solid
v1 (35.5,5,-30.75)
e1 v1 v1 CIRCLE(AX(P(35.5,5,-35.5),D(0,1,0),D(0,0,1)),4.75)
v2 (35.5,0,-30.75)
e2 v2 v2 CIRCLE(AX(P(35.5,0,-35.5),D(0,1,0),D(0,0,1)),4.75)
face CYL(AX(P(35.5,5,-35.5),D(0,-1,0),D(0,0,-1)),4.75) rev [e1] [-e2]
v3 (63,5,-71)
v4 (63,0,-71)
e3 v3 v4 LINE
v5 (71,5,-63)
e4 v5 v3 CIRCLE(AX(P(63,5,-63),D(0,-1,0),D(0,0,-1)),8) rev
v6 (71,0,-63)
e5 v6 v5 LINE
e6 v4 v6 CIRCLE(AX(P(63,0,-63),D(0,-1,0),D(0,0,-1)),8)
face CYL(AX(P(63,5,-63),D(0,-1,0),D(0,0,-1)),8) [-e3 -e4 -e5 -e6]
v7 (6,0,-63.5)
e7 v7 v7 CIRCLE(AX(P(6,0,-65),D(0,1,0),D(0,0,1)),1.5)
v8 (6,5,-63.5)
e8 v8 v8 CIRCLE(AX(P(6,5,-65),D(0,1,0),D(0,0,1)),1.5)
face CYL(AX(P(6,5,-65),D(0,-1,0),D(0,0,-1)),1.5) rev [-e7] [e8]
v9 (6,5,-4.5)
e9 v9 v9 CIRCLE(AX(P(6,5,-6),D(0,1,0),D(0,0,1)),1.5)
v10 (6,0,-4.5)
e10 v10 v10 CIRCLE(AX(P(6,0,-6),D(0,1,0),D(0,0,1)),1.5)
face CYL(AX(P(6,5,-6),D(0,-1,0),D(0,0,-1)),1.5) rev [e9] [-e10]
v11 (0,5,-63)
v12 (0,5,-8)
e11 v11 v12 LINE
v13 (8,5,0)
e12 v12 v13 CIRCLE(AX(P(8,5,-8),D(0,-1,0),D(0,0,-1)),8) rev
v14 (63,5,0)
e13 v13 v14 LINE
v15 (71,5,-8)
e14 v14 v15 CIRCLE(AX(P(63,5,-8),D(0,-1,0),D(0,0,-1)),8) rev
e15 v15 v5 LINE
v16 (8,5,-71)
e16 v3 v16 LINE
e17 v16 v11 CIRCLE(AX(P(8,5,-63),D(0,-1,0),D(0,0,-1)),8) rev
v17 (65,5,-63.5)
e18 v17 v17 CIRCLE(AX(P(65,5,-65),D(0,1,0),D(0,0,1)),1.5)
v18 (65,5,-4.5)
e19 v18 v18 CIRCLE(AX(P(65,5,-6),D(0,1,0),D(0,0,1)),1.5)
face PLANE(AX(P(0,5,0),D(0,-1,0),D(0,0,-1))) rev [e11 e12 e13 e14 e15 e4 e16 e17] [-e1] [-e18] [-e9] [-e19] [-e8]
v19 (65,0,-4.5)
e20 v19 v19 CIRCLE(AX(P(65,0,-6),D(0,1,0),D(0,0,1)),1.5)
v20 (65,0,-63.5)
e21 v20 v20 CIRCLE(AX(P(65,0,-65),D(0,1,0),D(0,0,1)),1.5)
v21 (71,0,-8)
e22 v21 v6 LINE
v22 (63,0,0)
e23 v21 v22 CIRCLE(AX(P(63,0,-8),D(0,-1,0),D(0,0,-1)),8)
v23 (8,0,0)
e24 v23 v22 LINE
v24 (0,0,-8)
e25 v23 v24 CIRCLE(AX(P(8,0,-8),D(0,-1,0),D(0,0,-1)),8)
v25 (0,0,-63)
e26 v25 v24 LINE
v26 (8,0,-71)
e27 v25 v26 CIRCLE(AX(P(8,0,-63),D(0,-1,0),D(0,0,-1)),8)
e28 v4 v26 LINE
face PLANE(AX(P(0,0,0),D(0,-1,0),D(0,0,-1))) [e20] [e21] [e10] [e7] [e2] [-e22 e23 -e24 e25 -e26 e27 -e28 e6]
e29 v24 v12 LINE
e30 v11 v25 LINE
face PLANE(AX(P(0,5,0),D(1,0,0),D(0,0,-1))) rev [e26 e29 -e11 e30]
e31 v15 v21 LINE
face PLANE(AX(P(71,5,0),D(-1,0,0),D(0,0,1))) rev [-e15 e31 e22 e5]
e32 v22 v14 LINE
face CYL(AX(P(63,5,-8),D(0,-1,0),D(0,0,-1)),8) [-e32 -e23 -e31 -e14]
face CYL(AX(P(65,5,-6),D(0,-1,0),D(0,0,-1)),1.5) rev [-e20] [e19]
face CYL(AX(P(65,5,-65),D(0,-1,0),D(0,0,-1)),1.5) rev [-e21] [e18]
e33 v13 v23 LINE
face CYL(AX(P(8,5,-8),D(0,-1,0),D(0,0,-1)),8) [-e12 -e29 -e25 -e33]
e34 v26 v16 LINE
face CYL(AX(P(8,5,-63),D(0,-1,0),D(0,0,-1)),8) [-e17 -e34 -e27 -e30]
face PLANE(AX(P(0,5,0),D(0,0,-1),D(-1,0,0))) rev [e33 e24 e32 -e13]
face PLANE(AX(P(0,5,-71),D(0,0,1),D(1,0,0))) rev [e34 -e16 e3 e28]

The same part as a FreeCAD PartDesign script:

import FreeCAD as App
import Part
import Sketcher

V = App.Vector


def edges_at(feature, points):
    """Names of the edges that pass closest to the given points."""
    edges = feature.Shape.Edges
    near = lambda p: min(range(len(edges)), key=lambda i: edges[i].distToShape(Part.Vertex(*p))[0])
    return sorted({f"Edge{near(p) + 1}" for p in points})


def add_polygon(sketch, points):
    """Adds a closed chain of lines whose ends are joined by coincident constraints."""
    first, n = sketch.GeometryCount, len(points)
    for a, b in zip(points, points[1:] + points[:1]):
        sketch.addGeometry(Part.LineSegment(App.Vector(*a, 0), App.Vector(*b, 0)), False)
    for i in range(n):
        sketch.addConstraint(Sketcher.Constraint("Coincident", first + i, 2, first + (i + 1) % n, 1))

doc = App.newDocument("Part")
body = doc.addObject("PartDesign::Body", "Body")

# Sketch on XZ plane
sketch1 = doc.addObject("Sketcher::SketchObject", "Sketch")
body.addObject(sketch1)
sketch1.AttachmentSupport = (doc.XZ_Plane, [""])
sketch1.MapMode = "FlatFace"
add_polygon(sketch1, [(0, -71), (0, 0), (71, 0), (71, -71)])  # lines 0-3
sketch1.addGeometry(Part.Circle(V(6, -6, 0), V(0, 0, 1), 1.5), False)  # 4
sketch1.addGeometry(Part.Circle(V(65, -6, 0), V(0, 0, 1), 1.5), False)  # 5
sketch1.addGeometry(Part.Circle(V(6, -65, 0), V(0, 0, 1), 1.5), False)  # 6
sketch1.addGeometry(Part.Circle(V(35.5, -35.5, 0), V(0, 0, 1), 4.8), False)  # 7
sketch1.addGeometry(Part.Circle(V(65, -65, 0), V(0, 0, 1), 1.5), False)  # 8
sketch1.addConstraint([
    Sketcher.Constraint("Vertical", 0),
    Sketcher.Constraint("Horizontal", 1),
    Sketcher.Constraint("Vertical", 2),
    Sketcher.Constraint("Horizontal", 3),
    Sketcher.Constraint("Coincident", 0, 2, -1, 1),
    Sketcher.Constraint("Equal", 4, 5),
    Sketcher.Constraint("Equal", 5, 6),
    Sketcher.Constraint("Equal", 6, 8),
    Sketcher.Constraint("Horizontal", 4, 3, 5, 3),
    Sketcher.Constraint("Horizontal", 6, 3, 8, 3),
    Sketcher.Constraint("Vertical", 4, 3, 6, 3),
    Sketcher.Constraint("Vertical", 5, 3, 8, 3),
    Sketcher.Constraint("Equal", 3, 0),
    Sketcher.Constraint("Diameter", 4, 3.0),
    Sketcher.Constraint("Diameter", 7, 9.5),
    Sketcher.Constraint("DistanceX", 1, 1, 1, 2, 71.0),
    Sketcher.Constraint("DistanceX", -1, 1, 4, 3, 6.0),
    Sketcher.Constraint("DistanceY", 4, 3, -1, 1, 6.0),
    Sketcher.Constraint("DistanceX", -1, 1, 5, 3, 65.0),
    Sketcher.Constraint("DistanceY", 6, 3, -1, 1, 65.0),
    Sketcher.Constraint("DistanceX", -1, 1, 7, 3, 35.5),
    Sketcher.Constraint("DistanceY", 7, 3, -1, 1, 35.5),
])
pad1 = doc.addObject("PartDesign::Pad", "Pad")
body.addObject(pad1)
pad1.Profile = sketch1
pad1.Length = 5
pad1.Reversed = True
doc.recompute()

fillet = doc.addObject("PartDesign::Fillet", "Fillet")
body.addObject(fillet)
fillet.Base = (pad1, edges_at(pad1, [
    (0, 2.5, -71),
    (71, 2.5, -71),
    (71, 2.5, 0),
    (0, 2.5, 0),
]))
fillet.Radius = 8

doc.recompute()
